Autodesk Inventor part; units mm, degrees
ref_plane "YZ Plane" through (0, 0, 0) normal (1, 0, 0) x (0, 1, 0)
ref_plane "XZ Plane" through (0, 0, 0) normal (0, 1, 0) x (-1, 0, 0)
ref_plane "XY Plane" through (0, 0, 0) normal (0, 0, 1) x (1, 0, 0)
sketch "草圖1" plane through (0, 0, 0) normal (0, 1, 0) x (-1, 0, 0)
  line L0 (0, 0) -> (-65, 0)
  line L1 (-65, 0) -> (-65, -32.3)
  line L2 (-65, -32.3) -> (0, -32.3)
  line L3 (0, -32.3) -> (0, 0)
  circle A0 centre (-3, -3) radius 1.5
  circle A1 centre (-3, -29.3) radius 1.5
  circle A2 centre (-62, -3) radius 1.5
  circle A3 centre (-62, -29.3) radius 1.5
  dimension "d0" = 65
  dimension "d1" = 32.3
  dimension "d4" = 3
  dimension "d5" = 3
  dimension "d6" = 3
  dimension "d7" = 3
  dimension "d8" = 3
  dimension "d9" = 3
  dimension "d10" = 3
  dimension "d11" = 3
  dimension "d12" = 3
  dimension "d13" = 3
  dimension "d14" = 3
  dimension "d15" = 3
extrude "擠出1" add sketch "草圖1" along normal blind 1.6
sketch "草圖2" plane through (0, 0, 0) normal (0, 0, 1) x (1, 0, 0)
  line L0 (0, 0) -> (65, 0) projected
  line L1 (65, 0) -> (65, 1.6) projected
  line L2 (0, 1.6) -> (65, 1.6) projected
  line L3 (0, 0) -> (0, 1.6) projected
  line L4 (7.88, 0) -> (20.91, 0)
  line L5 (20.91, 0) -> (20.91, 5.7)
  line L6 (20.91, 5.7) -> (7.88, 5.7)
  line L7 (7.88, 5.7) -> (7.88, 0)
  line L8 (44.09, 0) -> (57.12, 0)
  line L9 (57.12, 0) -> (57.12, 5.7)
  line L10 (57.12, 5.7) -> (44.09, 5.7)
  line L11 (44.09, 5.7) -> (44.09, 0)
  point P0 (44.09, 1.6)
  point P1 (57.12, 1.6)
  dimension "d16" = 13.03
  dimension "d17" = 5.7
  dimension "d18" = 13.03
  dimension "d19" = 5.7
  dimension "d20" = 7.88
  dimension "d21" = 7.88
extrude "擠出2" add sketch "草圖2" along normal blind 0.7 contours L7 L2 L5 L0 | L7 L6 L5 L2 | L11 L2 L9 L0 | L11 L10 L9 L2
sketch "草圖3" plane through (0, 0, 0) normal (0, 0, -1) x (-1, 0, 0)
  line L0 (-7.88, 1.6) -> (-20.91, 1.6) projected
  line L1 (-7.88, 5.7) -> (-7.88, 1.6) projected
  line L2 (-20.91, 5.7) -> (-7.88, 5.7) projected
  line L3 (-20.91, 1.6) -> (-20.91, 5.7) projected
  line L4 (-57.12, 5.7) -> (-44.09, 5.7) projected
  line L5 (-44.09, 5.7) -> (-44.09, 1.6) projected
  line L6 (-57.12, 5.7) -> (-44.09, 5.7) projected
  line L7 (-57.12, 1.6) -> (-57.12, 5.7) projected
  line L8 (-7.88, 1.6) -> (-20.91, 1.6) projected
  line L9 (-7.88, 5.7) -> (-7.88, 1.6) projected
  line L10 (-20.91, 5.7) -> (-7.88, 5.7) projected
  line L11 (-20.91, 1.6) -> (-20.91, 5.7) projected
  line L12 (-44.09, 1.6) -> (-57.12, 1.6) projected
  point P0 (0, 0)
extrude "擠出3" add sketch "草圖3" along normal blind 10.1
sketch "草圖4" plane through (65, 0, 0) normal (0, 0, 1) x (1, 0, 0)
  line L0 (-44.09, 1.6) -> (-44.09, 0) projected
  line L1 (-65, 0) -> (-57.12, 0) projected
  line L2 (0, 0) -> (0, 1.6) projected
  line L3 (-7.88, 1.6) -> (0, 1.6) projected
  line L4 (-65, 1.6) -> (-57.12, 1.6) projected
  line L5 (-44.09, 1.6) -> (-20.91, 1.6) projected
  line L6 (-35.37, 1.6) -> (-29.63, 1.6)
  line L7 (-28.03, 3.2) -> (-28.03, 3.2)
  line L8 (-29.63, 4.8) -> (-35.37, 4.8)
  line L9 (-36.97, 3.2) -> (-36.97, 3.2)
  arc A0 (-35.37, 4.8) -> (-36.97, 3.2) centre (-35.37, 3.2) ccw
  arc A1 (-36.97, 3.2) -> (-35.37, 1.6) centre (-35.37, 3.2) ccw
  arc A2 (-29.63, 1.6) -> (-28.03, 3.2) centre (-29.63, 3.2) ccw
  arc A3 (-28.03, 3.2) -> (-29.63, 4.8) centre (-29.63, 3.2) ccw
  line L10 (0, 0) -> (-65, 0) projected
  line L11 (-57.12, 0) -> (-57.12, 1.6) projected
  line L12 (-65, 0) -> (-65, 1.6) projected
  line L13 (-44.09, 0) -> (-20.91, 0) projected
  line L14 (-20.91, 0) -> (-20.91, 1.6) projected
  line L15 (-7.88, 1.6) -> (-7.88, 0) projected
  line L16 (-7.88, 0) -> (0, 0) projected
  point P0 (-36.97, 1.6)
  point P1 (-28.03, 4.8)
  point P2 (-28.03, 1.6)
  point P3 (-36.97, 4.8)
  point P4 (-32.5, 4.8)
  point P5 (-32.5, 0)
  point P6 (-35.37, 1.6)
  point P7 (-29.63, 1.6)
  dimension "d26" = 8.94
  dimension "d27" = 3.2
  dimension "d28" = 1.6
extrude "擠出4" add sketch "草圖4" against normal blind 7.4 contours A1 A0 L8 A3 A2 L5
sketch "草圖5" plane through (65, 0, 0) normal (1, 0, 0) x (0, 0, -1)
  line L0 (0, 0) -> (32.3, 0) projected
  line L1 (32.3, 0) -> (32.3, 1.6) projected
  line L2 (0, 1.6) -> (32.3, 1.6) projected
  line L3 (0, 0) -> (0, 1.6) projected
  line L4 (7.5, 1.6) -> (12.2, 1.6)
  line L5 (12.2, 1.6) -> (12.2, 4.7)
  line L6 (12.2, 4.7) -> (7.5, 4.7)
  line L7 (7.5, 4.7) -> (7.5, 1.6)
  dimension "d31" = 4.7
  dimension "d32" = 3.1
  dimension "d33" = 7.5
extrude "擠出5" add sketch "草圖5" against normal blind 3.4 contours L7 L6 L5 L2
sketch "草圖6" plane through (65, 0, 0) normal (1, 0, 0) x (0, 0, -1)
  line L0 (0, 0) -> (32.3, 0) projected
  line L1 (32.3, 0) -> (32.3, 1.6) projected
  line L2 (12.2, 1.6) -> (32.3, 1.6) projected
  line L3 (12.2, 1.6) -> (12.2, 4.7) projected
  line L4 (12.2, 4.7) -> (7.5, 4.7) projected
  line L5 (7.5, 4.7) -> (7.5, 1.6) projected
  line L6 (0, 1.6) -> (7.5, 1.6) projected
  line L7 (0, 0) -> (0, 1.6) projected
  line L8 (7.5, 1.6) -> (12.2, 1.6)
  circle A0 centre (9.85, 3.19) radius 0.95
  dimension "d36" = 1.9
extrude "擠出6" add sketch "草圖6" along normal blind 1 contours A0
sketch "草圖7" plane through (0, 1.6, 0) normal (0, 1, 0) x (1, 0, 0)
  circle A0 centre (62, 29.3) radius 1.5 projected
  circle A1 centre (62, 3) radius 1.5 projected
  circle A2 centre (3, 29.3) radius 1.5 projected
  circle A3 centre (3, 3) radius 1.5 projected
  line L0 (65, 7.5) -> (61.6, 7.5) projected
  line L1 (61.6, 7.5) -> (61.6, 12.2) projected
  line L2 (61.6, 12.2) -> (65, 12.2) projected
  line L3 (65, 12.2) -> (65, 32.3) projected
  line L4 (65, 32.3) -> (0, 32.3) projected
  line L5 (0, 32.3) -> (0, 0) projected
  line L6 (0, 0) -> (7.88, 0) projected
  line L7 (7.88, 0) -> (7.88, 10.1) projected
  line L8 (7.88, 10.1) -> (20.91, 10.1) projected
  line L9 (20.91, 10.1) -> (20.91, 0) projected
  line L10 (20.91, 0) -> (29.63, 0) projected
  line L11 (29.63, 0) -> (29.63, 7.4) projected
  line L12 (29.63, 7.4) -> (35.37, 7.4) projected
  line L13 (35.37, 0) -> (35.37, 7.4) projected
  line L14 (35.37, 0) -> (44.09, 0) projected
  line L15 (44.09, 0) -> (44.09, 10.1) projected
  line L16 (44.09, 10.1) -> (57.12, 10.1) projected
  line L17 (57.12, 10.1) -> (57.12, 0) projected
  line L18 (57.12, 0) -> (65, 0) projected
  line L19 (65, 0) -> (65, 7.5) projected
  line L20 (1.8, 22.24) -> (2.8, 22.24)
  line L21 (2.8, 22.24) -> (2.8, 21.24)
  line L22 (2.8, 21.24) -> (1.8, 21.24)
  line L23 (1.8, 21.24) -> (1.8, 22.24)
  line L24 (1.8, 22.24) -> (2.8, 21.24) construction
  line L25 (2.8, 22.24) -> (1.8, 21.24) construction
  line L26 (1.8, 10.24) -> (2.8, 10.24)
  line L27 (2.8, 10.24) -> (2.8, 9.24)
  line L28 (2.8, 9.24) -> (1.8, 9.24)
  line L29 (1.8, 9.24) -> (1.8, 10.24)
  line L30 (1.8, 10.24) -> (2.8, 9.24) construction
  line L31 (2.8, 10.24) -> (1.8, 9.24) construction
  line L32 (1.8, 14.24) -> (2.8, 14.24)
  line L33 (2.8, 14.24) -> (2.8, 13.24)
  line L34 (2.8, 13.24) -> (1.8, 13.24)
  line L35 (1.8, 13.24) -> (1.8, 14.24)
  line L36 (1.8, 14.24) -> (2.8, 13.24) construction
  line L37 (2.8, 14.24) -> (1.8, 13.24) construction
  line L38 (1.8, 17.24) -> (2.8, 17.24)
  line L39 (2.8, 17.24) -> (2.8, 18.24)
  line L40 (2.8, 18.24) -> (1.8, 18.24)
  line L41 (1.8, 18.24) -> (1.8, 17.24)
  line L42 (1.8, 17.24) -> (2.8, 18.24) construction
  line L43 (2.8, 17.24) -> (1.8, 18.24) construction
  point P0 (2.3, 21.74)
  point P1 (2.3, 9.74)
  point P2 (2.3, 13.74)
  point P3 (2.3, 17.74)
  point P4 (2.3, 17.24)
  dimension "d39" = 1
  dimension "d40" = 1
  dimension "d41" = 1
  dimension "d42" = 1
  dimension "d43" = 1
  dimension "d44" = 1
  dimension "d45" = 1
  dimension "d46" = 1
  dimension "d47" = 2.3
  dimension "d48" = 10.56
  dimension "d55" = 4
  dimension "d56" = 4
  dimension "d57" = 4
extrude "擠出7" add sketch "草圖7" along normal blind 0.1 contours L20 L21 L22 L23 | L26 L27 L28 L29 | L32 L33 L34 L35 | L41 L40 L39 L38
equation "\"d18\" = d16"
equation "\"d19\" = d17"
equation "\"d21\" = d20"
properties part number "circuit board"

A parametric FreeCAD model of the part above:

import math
import FreeCAD as App
import Part
import Sketcher
Q = App.Units.Quantity

doc = App.newDocument("Part")
body = doc.addObject("PartDesign::Body", "Body")

# Sketch on XZ plane
sketch1 = body.newObject("Sketcher::SketchObject", "Sketch")
sketch1.AttachmentSupport = (doc.getObject("XZ_Plane"), [""])
sketch1.MapMode = "FlatFace"
sketch1.addGeometry([
    Part.LineSegment(App.Vector(0, -32.3, 0), App.Vector(0, 0, 0)),  # 0
    Part.LineSegment(App.Vector(0, 0, 0), App.Vector(65, 0, 0)),  # 1
    Part.LineSegment(App.Vector(65, 0, 0), App.Vector(65, -32.3, 0)),  # 2
    Part.LineSegment(App.Vector(65, -32.3, 0), App.Vector(0, -32.3, 0)),  # 3
    Part.Circle(App.Vector(62, -29.3, 0), App.Vector(0, 0, 1), 1.5),  # 4
    Part.Circle(App.Vector(3, -29.3, 0), App.Vector(0, 0, 1), 1.5),  # 5
    Part.Circle(App.Vector(62, -3, 0), App.Vector(0, 0, 1), 1.5),  # 6
    Part.Circle(App.Vector(3, -3, 0), App.Vector(0, 0, 1), 1.5),  # 7
], False)
sketch1.addConstraint([
    Sketcher.Constraint("Coincident", 0, 2, 1, 1),
    Sketcher.Constraint("Coincident", 1, 2, 2, 1),
    Sketcher.Constraint("Coincident", 2, 2, 3, 1),
    Sketcher.Constraint("Coincident", 3, 2, 0, 1),
    Sketcher.Constraint("Vertical", 0),
    Sketcher.Constraint("Horizontal", 1),
    Sketcher.Constraint("Vertical", 2),
    Sketcher.Constraint("Horizontal", 3),
    Sketcher.Constraint("Coincident", 0, 2, -1, 1),
    Sketcher.Constraint("Equal", 4, 5),
    Sketcher.Constraint("Equal", 5, 6),
    Sketcher.Constraint("Equal", 6, 7),
    Sketcher.Constraint("Horizontal", 4, 3, 5, 3),
    Sketcher.Constraint("Horizontal", 6, 3, 7, 3),
    Sketcher.Constraint("Vertical", 4, 3, 6, 3),
    Sketcher.Constraint("Vertical", 5, 3, 7, 3),
    Sketcher.Constraint("Diameter", 4, Q("3 mm")),
    Sketcher.Constraint("DistanceX", 1, 1, 1, 2, Q("65 mm")),
    Sketcher.Constraint("DistanceY", 0, 1, 0, 2, Q("32.3 mm")),
    Sketcher.Constraint("DistanceX", -1, 1, 5, 3, Q("3 mm")),
    Sketcher.Constraint("DistanceY", 6, 3, -1, 1, Q("3 mm")),
    Sketcher.Constraint("DistanceX", 6, 3, 1, 2, Q("3 mm")),
    Sketcher.Constraint("DistanceY", 2, 2, 4, 3, Q("3 mm")),
])
pad1 = body.newObject("PartDesign::Pad", "Pad")
pad1.Profile = sketch1
pad1.Length = 1.6
pad1.Reversed = True

# Sketch on XY plane
sketch2 = body.newObject("Sketcher::SketchObject", "Sketch001")
sketch2.AttachmentSupport = (doc.getObject("XY_Plane"), [""])
sketch2.MapMode = "FlatFace"
sketch2.addGeometry([
    Part.LineSegment(App.Vector(7.88, 0, 0), App.Vector(20.91, 0, 0)),  # 0
    Part.LineSegment(App.Vector(20.91, 0, 0), App.Vector(20.91, 5.7, 0)),  # 1
    Part.LineSegment(App.Vector(20.91, 5.7, 0), App.Vector(7.88, 5.7, 0)),  # 2
    Part.LineSegment(App.Vector(7.88, 5.7, 0), App.Vector(7.88, 0, 0)),  # 3
    Part.LineSegment(App.Vector(44.09, 0, 0), App.Vector(57.12, 0, 0)),  # 4
    Part.LineSegment(App.Vector(57.12, 0, 0), App.Vector(57.12, 5.7, 0)),  # 5
    Part.LineSegment(App.Vector(57.12, 5.7, 0), App.Vector(44.09, 5.7, 0)),  # 6
    Part.LineSegment(App.Vector(44.09, 5.7, 0), App.Vector(44.09, 0, 0)),  # 7
], False)
sketch2.addConstraint([
    Sketcher.Constraint("Coincident", 0, 2, 1, 1),
    Sketcher.Constraint("Coincident", 1, 2, 2, 1),
    Sketcher.Constraint("Coincident", 2, 2, 3, 1),
    Sketcher.Constraint("Coincident", 3, 2, 0, 1),
    Sketcher.Constraint("Coincident", 4, 2, 5, 1),
    Sketcher.Constraint("Coincident", 5, 2, 6, 1),
    Sketcher.Constraint("Coincident", 6, 2, 7, 1),
    Sketcher.Constraint("Coincident", 7, 2, 4, 1),
    Sketcher.Constraint("Horizontal", 0),
    Sketcher.Constraint("Vertical", 1),
    Sketcher.Constraint("Horizontal", 2),
    Sketcher.Constraint("Vertical", 3),
    Sketcher.Constraint("Horizontal", 4),
    Sketcher.Constraint("Vertical", 5),
    Sketcher.Constraint("Horizontal", 6),
    Sketcher.Constraint("Vertical", 7),
    Sketcher.Constraint("PointOnObject", 0, 2, -1),
    Sketcher.Constraint("PointOnObject", 4, 2, -1),
    Sketcher.Constraint("Horizontal", 2, 2, 5, 2),
    Sketcher.Constraint("Equal", 2, 4),
    Sketcher.Constraint("DistanceY", 1, 1, 1, 2, Q("5.7 mm")),
    Sketcher.Constraint("DistanceX", 0, 1, 0, 2, Q("13.03 mm")),
    Sketcher.Constraint("DistanceX", -1, 1, 2, 2, Q("7.88 mm")),
    Sketcher.Constraint("DistanceX", -1, 1, 4, 2, Q("57.12 mm")),
])
pad2 = body.newObject("PartDesign::Pad", "Pad001")
pad2.Profile = sketch2
pad2.Length = 0.7

# Sketch on XY plane
sketch3 = body.newObject("Sketcher::SketchObject", "Sketch002")
sketch3.AttachmentSupport = (doc.getObject("XY_Plane"), [""])
sketch3.MapMode = "FlatFace"
sketch3.addGeometry([
    Part.LineSegment(App.Vector(20.91, 1.6, 0), App.Vector(7.88, 1.6, 0)),  # 0
    Part.LineSegment(App.Vector(7.88, 1.6, 0), App.Vector(7.88, 5.7, 0)),  # 1
    Part.LineSegment(App.Vector(7.88, 5.7, 0), App.Vector(20.91, 5.7, 0)),  # 2
    Part.LineSegment(App.Vector(20.91, 5.7, 0), App.Vector(20.91, 1.6, 0)),  # 3
    Part.LineSegment(App.Vector(44.09, 5.7, 0), App.Vector(57.12, 5.7, 0)),  # 4
    Part.LineSegment(App.Vector(57.12, 5.7, 0), App.Vector(57.12, 1.6, 0)),  # 5
    Part.LineSegment(App.Vector(57.12, 1.6, 0), App.Vector(44.09, 1.6, 0)),  # 6
    Part.LineSegment(App.Vector(44.09, 1.6, 0), App.Vector(44.09, 5.7, 0)),  # 7
], False)
sketch3.addConstraint([
    Sketcher.Constraint("Coincident", 0, 2, 1, 1),
    Sketcher.Constraint("Coincident", 1, 2, 2, 1),
    Sketcher.Constraint("Coincident", 2, 2, 3, 1),
    Sketcher.Constraint("Coincident", 3, 2, 0, 1),
    Sketcher.Constraint("Coincident", 4, 2, 5, 1),
    Sketcher.Constraint("Coincident", 5, 2, 6, 1),
    Sketcher.Constraint("Coincident", 6, 2, 7, 1),
    Sketcher.Constraint("Coincident", 7, 2, 4, 1),
    Sketcher.Constraint("Horizontal", 0),
    Sketcher.Constraint("Vertical", 1),
    Sketcher.Constraint("Horizontal", 2),
    Sketcher.Constraint("Vertical", 3),
    Sketcher.Constraint("Horizontal", 4),
    Sketcher.Constraint("Vertical", 5),
    Sketcher.Constraint("Horizontal", 6),
    Sketcher.Constraint("Vertical", 7),
    Sketcher.Constraint("Horizontal", 2, 2, 4, 2),
    Sketcher.Constraint("Horizontal", 3, 2, 5, 2),
    Sketcher.Constraint("Equal", 2, 4),
    Sketcher.Constraint("DistanceY", 1, 1, 1, 2, Q("4.1 mm")),
    Sketcher.Constraint("DistanceX", 0, 2, 0, 1, Q("13.03 mm")),
    Sketcher.Constraint("DistanceY", -1, 1, 0, 2, Q("1.6 mm")),
    Sketcher.Constraint("DistanceX", -1, 1, 0, 2, Q("7.88 mm")),
    Sketcher.Constraint("DistanceX", -1, 1, 4, 2, Q("57.12 mm")),
])
pad3 = body.newObject("PartDesign::Pad", "Pad002")
pad3.Profile = sketch3
pad3.Length = 10.1
pad3.Reversed = True

# Sketch on XY plane
sketch4 = body.newObject("Sketcher::SketchObject", "Sketch003")
sketch4.AttachmentSupport = (doc.getObject("XY_Plane"), [""])
sketch4.MapMode = "FlatFace"
sketch4.addGeometry([
    Part.ArcOfCircle(Part.Circle(App.Vector(29.63, 3.2, 0), App.Vector(0, 0, 1), 1.6), math.radians(90), math.radians(270)),
    Part.LineSegment(App.Vector(29.63, 1.6, 0), App.Vector(35.37, 1.6, 0)),
    Part.ArcOfCircle(Part.Circle(App.Vector(35.37, 3.2, 0), App.Vector(0, 0, 1), 1.6), math.radians(-90), math.radians(90)),
    Part.LineSegment(App.Vector(35.37, 4.8, 0), App.Vector(29.63, 4.8, 0)),
], False)
sketch4.addConstraint([
    Sketcher.Constraint("Tangent", 0, 2, 1, 1),
    Sketcher.Constraint("Tangent", 1, 2, 2, 1),
    Sketcher.Constraint("Tangent", 2, 2, 3, 1),
    Sketcher.Constraint("Tangent", 3, 2, 0, 1),
    Sketcher.Constraint("Horizontal", 1),
    Sketcher.Constraint("Horizontal", 3),
    Sketcher.Constraint("Radius", 0, Q("1.6 mm")),
    Sketcher.Constraint("DistanceY", -1, 1, 0, 3, Q("3.2 mm")),
    Sketcher.Constraint("DistanceX", 1, 1, 1, 2, Q("5.74 mm")),
    Sketcher.Constraint("DistanceX", -1, 1, 0, 3, Q("29.63 mm")),
])
pad4 = body.newObject("PartDesign::Pad", "Pad003")
pad4.Profile = sketch4
pad4.Length = 7.4
pad4.Reversed = True

# Sketch on YZ plane
sketch5 = body.newObject("Sketcher::SketchObject", "Sketch004")
sketch5.AttachmentSupport = (doc.getObject("YZ_Plane"), [""])
sketch5.MapMode = "FlatFace"
sketch5.AttachmentOffset = App.Placement(App.Vector(0, 0, 65), App.Rotation())
sketch5.addGeometry([
    Part.LineSegment(App.Vector(4.7, -7.5, 0), App.Vector(1.6, -7.5, 0)),
    Part.LineSegment(App.Vector(1.6, -7.5, 0), App.Vector(1.6, -12.2, 0)),
    Part.LineSegment(App.Vector(1.6, -12.2, 0), App.Vector(4.7, -12.2, 0)),
    Part.LineSegment(App.Vector(4.7, -12.2, 0), App.Vector(4.7, -7.5, 0)),
], False)
sketch5.addConstraint([
    Sketcher.Constraint("Coincident", 0, 2, 1, 1),
    Sketcher.Constraint("Coincident", 1, 2, 2, 1),
    Sketcher.Constraint("Coincident", 2, 2, 3, 1),
    Sketcher.Constraint("Coincident", 3, 2, 0, 1),
    Sketcher.Constraint("Horizontal", 0),
    Sketcher.Constraint("Vertical", 1),
    Sketcher.Constraint("Horizontal", 2),
    Sketcher.Constraint("Vertical", 3),
    Sketcher.Constraint("DistanceX", 0, 2, 0, 1, Q("3.1 mm")),
    Sketcher.Constraint("DistanceY", 1, 2, 1, 1, Q("4.7 mm")),
    Sketcher.Constraint("DistanceY", 0, 2, -1, 1, Q("7.5 mm")),
    Sketcher.Constraint("DistanceX", -1, 1, 2, 2, Q("4.7 mm")),
])
pad5 = body.newObject("PartDesign::Pad", "Pad004")
pad5.Profile = sketch5
pad5.Length = 3.4
pad5.Reversed = True

# Sketch on YZ plane
sketch6 = body.newObject("Sketcher::SketchObject", "Sketch005")
sketch6.AttachmentSupport = (doc.getObject("YZ_Plane"), [""])
sketch6.MapMode = "FlatFace"
sketch6.AttachmentOffset = App.Placement(App.Vector(0, 0, 65), App.Rotation())
sketch6.addGeometry(Part.Circle(App.Vector(3.19, -9.85, 0), App.Vector(0, 0, 1), 0.95), False)
sketch6.addConstraint([
    Sketcher.Constraint("Diameter", 0, Q("1.9 mm")),
    Sketcher.Constraint("DistanceX", -1, 1, 0, 3, Q("3.19 mm")),
    Sketcher.Constraint("DistanceY", 0, 3, -1, 1, Q("9.85 mm")),
])
pad6 = body.newObject("PartDesign::Pad", "Pad005")
pad6.Profile = sketch6
pad6.Length = 1

# Sketch on XZ plane
sketch7 = body.newObject("Sketcher::SketchObject", "Sketch006")
sketch7.AttachmentSupport = (doc.getObject("XZ_Plane"), [""])
sketch7.MapMode = "FlatFace"
sketch7.AttachmentOffset = App.Placement(App.Vector(0, 0, -1.6), App.Rotation())
sketch7.addGeometry([
    Part.LineSegment(App.Vector(2.8, -22.24, 0), App.Vector(1.8, -22.24, 0)),  # 0
    Part.LineSegment(App.Vector(1.8, -22.24, 0), App.Vector(1.8, -21.24, 0)),  # 1
    Part.LineSegment(App.Vector(1.8, -21.24, 0), App.Vector(2.8, -21.24, 0)),  # 2
    Part.LineSegment(App.Vector(2.8, -21.24, 0), App.Vector(2.8, -22.24, 0)),  # 3
    Part.LineSegment(App.Vector(2.8, -10.24, 0), App.Vector(1.8, -10.24, 0)),  # 4
    Part.LineSegment(App.Vector(1.8, -10.24, 0), App.Vector(1.8, -9.24, 0)),  # 5
    Part.LineSegment(App.Vector(1.8, -9.24, 0), App.Vector(2.8, -9.24, 0)),  # 6
    Part.LineSegment(App.Vector(2.8, -9.24, 0), App.Vector(2.8, -10.24, 0)),  # 7
    Part.LineSegment(App.Vector(2.8, -14.24, 0), App.Vector(1.8, -14.24, 0)),  # 8
    Part.LineSegment(App.Vector(1.8, -14.24, 0), App.Vector(1.8, -13.24, 0)),  # 9
    Part.LineSegment(App.Vector(1.8, -13.24, 0), App.Vector(2.8, -13.24, 0)),  # 10
    Part.LineSegment(App.Vector(2.8, -13.24, 0), App.Vector(2.8, -14.24, 0)),  # 11
    Part.LineSegment(App.Vector(1.8, -18.24, 0), App.Vector(1.8, -17.24, 0)),  # 12
    Part.LineSegment(App.Vector(1.8, -17.24, 0), App.Vector(2.8, -17.24, 0)),  # 13
    Part.LineSegment(App.Vector(2.8, -17.24, 0), App.Vector(2.8, -18.24, 0)),  # 14
    Part.LineSegment(App.Vector(2.8, -18.24, 0), App.Vector(1.8, -18.24, 0)),  # 15
], False)
sketch7.addConstraint([
    Sketcher.Constraint("Coincident", 0, 2, 1, 1),
    Sketcher.Constraint("Coincident", 1, 2, 2, 1),
    Sketcher.Constraint("Coincident", 2, 2, 3, 1),
    Sketcher.Constraint("Coincident", 3, 2, 0, 1),
    Sketcher.Constraint("Coincident", 4, 2, 5, 1),
    Sketcher.Constraint("Coincident", 5, 2, 6, 1),
    Sketcher.Constraint("Coincident", 6, 2, 7, 1),
    Sketcher.Constraint("Coincident", 7, 2, 4, 1),
    Sketcher.Constraint("Coincident", 8, 2, 9, 1),
    Sketcher.Constraint("Coincident", 9, 2, 10, 1),
    Sketcher.Constraint("Coincident", 10, 2, 11, 1),
    Sketcher.Constraint("Coincident", 11, 2, 8, 1),
    Sketcher.Constraint("Coincident", 12, 2, 13, 1),
    Sketcher.Constraint("Coincident", 13, 2, 14, 1),
    Sketcher.Constraint("Coincident", 14, 2, 15, 1),
    Sketcher.Constraint("Coincident", 15, 2, 12, 1),
    Sketcher.Constraint("Horizontal", 0),
    Sketcher.Constraint("Vertical", 1),
    Sketcher.Constraint("Horizontal", 2),
    Sketcher.Constraint("Vertical", 3),
    Sketcher.Constraint("Horizontal", 4),
    Sketcher.Constraint("Vertical", 5),
    Sketcher.Constraint("Horizontal", 6),
    Sketcher.Constraint("Vertical", 7),
    Sketcher.Constraint("Horizontal", 8),
    Sketcher.Constraint("Vertical", 9),
    Sketcher.Constraint("Horizontal", 10),
    Sketcher.Constraint("Vertical", 11),
    Sketcher.Constraint("Vertical", 12),
    Sketcher.Constraint("Horizontal", 13),
    Sketcher.Constraint("Vertical", 14),
    Sketcher.Constraint("Horizontal", 15),
    Sketcher.Constraint("Vertical", 1, 2, 4, 2),
    Sketcher.Constraint("Vertical", 3, 2, 6, 2),
    Sketcher.Constraint("Vertical", 5, 2, 8, 2),
    Sketcher.Constraint("Vertical", 7, 2, 10, 2),
    Sketcher.Constraint("Vertical", 9, 2, 12, 2),
    Sketcher.Constraint("Vertical", 11, 2, 13, 2),
    Sketcher.Constraint("Equal", 15, 1),
    Sketcher.Constraint("Equal", 3, 5),
    Sketcher.Constraint("Equal", 7, 9),
    Sketcher.Constraint("Equal", 11, 12),
    Sketcher.Constraint("DistanceX", 0, 2, 0, 1, Q("1 mm")),
    Sketcher.Constraint("DistanceY", 8, 2, 4, 2, Q("4 mm")),
    Sketcher.Constraint("DistanceY", 12, 2, 9, 2, Q("4 mm")),
    Sketcher.Constraint("DistanceY", 1, 2, 12, 2, Q("4 mm")),
    Sketcher.Constraint("DistanceX", -1, 1, 0, 2, Q("1.8 mm")),
    Sketcher.Constraint("DistanceY", 0, 2, -1, 1, Q("22.24 mm")),
])
pad7 = body.newObject("PartDesign::Pad", "Pad006")
pad7.Profile = sketch7
pad7.Length = 0.1
pad7.Reversed = True

doc.recompute()
